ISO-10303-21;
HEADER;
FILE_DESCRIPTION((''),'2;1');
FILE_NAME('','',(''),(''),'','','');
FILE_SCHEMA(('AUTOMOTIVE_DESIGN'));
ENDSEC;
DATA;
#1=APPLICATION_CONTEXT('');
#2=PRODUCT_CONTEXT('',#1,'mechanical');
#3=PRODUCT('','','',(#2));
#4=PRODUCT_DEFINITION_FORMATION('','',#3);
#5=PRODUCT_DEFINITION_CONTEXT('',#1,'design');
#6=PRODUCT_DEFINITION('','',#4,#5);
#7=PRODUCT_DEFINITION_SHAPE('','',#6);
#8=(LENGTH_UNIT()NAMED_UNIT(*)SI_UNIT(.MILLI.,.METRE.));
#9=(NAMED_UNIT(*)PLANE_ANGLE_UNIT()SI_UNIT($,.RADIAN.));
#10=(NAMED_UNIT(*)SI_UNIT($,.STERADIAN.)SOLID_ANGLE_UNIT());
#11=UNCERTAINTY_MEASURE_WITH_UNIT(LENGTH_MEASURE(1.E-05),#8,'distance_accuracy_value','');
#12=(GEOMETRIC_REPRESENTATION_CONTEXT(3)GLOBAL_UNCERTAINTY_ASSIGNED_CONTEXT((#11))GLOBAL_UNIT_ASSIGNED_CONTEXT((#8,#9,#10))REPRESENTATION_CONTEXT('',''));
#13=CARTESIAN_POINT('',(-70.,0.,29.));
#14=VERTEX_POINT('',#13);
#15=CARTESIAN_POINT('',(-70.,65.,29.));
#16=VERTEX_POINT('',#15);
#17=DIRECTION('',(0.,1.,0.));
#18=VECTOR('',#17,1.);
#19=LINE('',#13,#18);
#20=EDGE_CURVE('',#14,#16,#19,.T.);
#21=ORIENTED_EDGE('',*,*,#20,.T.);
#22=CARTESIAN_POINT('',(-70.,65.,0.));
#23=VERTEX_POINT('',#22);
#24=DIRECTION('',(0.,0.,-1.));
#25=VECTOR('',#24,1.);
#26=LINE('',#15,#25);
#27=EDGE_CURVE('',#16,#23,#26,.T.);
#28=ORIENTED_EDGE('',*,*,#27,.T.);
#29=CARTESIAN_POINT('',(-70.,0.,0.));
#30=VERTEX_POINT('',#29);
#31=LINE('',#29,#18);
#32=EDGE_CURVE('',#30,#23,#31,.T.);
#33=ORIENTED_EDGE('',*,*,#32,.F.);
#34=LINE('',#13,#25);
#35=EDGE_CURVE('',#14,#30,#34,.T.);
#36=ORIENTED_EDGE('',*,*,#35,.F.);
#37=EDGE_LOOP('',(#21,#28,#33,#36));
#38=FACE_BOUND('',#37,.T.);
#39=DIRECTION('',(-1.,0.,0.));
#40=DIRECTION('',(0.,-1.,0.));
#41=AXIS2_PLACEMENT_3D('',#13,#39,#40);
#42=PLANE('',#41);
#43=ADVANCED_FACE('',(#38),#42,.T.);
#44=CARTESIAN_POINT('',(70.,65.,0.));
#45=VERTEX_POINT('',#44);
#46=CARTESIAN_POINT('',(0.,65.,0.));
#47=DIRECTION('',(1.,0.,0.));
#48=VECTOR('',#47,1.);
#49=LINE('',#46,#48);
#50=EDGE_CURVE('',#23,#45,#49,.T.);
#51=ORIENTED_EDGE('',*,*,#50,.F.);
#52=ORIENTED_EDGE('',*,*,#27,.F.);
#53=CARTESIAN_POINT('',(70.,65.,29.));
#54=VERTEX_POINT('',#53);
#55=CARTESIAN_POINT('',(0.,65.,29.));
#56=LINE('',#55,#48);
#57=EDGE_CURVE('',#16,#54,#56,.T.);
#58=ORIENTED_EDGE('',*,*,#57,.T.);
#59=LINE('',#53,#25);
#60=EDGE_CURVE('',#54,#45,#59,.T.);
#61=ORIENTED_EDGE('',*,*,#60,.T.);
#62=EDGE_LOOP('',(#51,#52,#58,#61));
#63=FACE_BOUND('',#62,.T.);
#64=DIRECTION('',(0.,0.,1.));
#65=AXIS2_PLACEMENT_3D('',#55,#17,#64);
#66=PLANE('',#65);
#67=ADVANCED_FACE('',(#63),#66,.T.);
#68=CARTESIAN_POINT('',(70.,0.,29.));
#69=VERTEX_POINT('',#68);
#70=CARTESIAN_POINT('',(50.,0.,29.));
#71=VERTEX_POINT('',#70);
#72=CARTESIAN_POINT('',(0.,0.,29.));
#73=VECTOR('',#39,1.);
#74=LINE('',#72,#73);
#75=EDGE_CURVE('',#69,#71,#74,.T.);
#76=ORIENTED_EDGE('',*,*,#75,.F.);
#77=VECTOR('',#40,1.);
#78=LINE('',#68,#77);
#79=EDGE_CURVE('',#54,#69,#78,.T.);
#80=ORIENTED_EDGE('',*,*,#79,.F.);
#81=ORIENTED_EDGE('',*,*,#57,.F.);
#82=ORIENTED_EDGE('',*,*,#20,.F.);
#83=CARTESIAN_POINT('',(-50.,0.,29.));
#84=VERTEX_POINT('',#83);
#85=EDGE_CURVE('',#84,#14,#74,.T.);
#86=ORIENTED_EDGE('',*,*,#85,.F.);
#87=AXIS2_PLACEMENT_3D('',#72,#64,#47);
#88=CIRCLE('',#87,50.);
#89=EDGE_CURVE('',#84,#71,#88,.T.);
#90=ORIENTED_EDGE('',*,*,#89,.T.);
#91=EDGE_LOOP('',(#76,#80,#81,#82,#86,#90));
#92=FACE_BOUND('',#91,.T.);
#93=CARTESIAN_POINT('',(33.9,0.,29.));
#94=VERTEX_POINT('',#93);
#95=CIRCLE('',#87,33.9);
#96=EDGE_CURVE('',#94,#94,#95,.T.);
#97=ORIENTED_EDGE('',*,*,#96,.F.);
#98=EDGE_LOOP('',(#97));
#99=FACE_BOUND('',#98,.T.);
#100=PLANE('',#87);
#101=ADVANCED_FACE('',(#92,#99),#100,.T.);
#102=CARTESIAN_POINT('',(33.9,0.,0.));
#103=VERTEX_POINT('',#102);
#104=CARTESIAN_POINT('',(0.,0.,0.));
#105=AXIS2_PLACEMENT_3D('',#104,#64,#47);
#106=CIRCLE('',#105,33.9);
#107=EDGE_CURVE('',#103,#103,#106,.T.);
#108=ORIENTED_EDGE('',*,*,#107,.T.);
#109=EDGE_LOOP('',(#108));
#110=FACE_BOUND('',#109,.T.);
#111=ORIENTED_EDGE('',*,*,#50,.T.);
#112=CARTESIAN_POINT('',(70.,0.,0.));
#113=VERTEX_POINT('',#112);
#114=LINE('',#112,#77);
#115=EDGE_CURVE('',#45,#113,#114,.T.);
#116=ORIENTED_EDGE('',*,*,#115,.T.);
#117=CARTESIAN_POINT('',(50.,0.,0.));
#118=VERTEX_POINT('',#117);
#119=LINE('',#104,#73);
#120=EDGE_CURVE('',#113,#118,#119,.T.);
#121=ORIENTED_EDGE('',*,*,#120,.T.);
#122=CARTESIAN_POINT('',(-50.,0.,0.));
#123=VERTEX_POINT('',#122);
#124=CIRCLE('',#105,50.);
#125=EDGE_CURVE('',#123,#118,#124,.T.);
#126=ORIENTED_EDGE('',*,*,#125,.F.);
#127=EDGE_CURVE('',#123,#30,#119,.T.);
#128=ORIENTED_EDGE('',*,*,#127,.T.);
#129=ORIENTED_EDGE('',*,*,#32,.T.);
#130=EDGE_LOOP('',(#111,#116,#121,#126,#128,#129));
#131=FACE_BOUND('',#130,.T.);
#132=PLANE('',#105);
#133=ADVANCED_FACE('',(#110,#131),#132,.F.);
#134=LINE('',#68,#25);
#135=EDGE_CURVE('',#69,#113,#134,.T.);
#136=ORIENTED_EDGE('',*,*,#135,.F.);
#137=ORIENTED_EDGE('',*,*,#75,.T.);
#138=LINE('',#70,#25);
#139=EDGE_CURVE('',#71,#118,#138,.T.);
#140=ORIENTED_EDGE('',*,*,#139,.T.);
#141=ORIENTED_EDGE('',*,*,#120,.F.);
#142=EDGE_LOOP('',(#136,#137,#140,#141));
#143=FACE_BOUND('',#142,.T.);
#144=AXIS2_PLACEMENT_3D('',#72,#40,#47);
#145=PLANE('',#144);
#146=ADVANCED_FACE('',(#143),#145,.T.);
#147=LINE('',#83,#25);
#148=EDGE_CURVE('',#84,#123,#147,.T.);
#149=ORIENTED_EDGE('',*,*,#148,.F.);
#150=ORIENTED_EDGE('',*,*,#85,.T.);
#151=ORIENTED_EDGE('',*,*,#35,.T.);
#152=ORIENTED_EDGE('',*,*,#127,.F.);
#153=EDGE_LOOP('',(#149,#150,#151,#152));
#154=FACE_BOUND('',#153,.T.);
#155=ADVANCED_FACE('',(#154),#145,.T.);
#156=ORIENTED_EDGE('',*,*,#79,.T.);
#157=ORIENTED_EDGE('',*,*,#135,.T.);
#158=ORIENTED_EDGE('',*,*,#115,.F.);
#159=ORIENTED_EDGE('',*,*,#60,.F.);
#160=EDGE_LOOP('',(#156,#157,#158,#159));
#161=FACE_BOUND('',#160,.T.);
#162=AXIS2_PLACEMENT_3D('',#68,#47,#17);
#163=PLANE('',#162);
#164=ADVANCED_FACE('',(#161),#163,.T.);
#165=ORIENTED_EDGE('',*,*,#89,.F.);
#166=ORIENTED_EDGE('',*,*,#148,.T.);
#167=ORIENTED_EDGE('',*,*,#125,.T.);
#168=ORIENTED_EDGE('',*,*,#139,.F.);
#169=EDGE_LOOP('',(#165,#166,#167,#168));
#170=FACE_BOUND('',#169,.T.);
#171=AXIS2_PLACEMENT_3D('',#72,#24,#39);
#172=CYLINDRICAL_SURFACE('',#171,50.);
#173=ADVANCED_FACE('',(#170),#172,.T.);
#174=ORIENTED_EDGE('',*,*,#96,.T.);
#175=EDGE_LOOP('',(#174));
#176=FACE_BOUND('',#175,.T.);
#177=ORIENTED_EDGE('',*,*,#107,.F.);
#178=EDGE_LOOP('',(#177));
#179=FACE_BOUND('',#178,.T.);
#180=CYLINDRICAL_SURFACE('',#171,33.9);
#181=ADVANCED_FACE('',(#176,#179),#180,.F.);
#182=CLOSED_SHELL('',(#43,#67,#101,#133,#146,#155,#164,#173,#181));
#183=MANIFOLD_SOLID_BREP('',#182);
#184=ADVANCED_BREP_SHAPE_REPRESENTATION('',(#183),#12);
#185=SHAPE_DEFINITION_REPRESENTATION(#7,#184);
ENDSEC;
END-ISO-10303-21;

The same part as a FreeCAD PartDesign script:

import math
import FreeCAD as App
import Part
import Sketcher

V = App.Vector
Q = App.Units.Quantity

doc = App.newDocument("Part")
body = doc.addObject("PartDesign::Body", "Body")

# Sketch on XY plane
sketch1 = body.newObject("Sketcher::SketchObject", "Sketch")
sketch1.AttachmentSupport = (doc.getObject("XY_Plane"), [""])
sketch1.MapMode = "FlatFace"
sketch1.addGeometry([
    Part.ArcOfCircle(Part.Circle(V(0, 0, 0), V(0, 0, 1), 50), math.radians(180), math.radians(360)),  # 0
    Part.LineSegment(V(50, 0, 0), V(70, 0, 0)),  # 1
    Part.LineSegment(V(70, 0, 0), V(70, 65, 0)),  # 2
    Part.LineSegment(V(70, 65, 0), V(-70, 65, 0)),  # 3
    Part.LineSegment(V(-70, 65, 0), V(-70, 0, 0)),  # 4
    Part.LineSegment(V(-70, 0, 0), V(-50, 0, 0)),  # 5
    Part.Circle(V(0, 0, 0), V(0, 0, 1), 34),  # 6
], False)
sketch1.addConstraint([
    Sketcher.Constraint("Coincident", 0, 2, 1, 1),
    Sketcher.Constraint("Coincident", 1, 2, 2, 1),
    Sketcher.Constraint("Coincident", 2, 2, 3, 1),
    Sketcher.Constraint("Coincident", 3, 2, 4, 1),
    Sketcher.Constraint("Coincident", 4, 2, 5, 1),
    Sketcher.Constraint("Coincident", 5, 2, 0, 1),
    Sketcher.Constraint("Horizontal", 1),
    Sketcher.Constraint("Vertical", 2),
    Sketcher.Constraint("Horizontal", 3),
    Sketcher.Constraint("Vertical", 4),
    Sketcher.Constraint("Horizontal", 5),
    Sketcher.Constraint("Coincident", 0, 3, -1, 1),
    Sketcher.Constraint("Coincident", 6, 3, -1, 1),
    Sketcher.Constraint("Symmetric", 1, 2, 4, 2, -1, 1),
    Sketcher.Constraint("PointOnObject", 0, 2, -1),
    Sketcher.Constraint("Radius", 0, Q("50 mm")),
    Sketcher.Constraint("Diameter", 6, Q("67.8 mm")),
    Sketcher.Constraint("DistanceX", 1, 1, 1, 2, Q("20 mm")),
    Sketcher.Constraint("DistanceY", 2, 1, 2, 2, Q("65 mm")),
])
pad1 = body.newObject("PartDesign::Pad", "Pad")
pad1.Profile = sketch1
pad1.Length = 29

doc.recompute()
